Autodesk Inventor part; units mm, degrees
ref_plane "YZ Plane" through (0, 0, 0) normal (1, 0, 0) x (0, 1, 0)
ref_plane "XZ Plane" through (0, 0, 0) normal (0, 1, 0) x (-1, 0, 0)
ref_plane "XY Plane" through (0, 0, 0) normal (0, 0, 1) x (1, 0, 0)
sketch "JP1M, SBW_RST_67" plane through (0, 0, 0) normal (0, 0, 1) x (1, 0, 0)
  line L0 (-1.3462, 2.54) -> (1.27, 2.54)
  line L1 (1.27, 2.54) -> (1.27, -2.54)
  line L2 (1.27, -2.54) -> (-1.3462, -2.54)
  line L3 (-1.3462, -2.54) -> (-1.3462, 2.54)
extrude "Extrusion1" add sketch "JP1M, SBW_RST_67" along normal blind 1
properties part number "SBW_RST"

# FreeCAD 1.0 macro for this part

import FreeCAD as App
import Part
import Sketcher
Q = App.Units.Quantity

doc = App.newDocument("Part")
body = doc.addObject("PartDesign::Body", "Body")

sketch1 = doc.addObject("Sketcher::SketchObject", "Sketch")
body.addObject(sketch1)
sketch1.AttachmentSupport = (doc.XY_Plane, [""])
sketch1.MapMode = "FlatFace"
sketch1.addGeometry([
    Part.LineSegment(App.Vector(1.3, 2.5, 0), App.Vector(-1.3, 2.5, 0)),
    Part.LineSegment(App.Vector(-1.3, 2.5, 0), App.Vector(-1.3, -2.5, 0)),
    Part.LineSegment(App.Vector(-1.3, -2.5, 0), App.Vector(1.3, -2.5, 0)),
    Part.LineSegment(App.Vector(1.3, -2.5, 0), App.Vector(1.3, 2.5, 0)),
], False)
sketch1.addConstraint([
    Sketcher.Constraint("Coincident", 0, 2, 1, 1),
    Sketcher.Constraint("Coincident", 1, 2, 2, 1),
    Sketcher.Constraint("Coincident", 2, 2, 3, 1),
    Sketcher.Constraint("Coincident", 3, 2, 0, 1),
    Sketcher.Constraint("Horizontal", 0),
    Sketcher.Constraint("Vertical", 1),
    Sketcher.Constraint("Horizontal", 2),
    Sketcher.Constraint("Vertical", 3),
    Sketcher.Constraint("DistanceY", 1, 2, 1, 1, Q("0.2 in")),
    Sketcher.Constraint("DistanceY", -1, 1, 0, 2, Q("0.1 in")),
    Sketcher.Constraint("DistanceX", 0, 2, 0, 1, Q("0.103 in")),
    Sketcher.Constraint("DistanceX", -1, 1, 2, 2, Q("0.05 in")),
])
pad1 = doc.addObject("PartDesign::Pad", "Pad")
body.addObject(pad1)
pad1.Profile = sketch1
pad1.Length = 1

doc.recompute()
